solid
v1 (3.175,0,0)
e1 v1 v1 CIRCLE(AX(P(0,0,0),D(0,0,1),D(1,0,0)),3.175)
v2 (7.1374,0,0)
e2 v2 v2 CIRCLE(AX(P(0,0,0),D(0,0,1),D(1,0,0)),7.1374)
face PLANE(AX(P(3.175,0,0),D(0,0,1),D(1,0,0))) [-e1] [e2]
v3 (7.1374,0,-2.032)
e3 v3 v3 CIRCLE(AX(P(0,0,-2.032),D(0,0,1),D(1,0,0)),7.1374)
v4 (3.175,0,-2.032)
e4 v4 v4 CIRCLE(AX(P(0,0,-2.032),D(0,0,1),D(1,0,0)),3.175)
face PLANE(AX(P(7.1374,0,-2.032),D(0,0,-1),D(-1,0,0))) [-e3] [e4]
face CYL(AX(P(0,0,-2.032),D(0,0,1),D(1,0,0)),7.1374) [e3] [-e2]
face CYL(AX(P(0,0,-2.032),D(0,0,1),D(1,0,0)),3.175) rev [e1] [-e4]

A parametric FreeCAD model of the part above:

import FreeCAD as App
import Part
import Sketcher
Q = App.Units.Quantity


def add_polygon(sketch, points):
    """Adds a closed chain of lines whose ends are joined by coincident constraints."""
    first, n = sketch.GeometryCount, len(points)
    for a, b in zip(points, points[1:] + points[:1]):
        sketch.addGeometry(Part.LineSegment(App.Vector(*a, 0), App.Vector(*b, 0)), False)
    for i in range(n):
        sketch.addConstraint(Sketcher.Constraint("Coincident", first + i, 2, first + (i + 1) % n, 1))

doc = App.newDocument("Part")
body = doc.addObject("PartDesign::Body", "Body")

# Sketch on XZ plane
sketch1 = doc.addObject("Sketcher::SketchObject", "Sketch")
body.addObject(sketch1)
sketch1.AttachmentSupport = (doc.XZ_Plane, [""])
sketch1.MapMode = "FlatFace"
add_polygon(sketch1, [(3.175, -2.032), (3.175, 0), (7.1374, 0), (7.1374, -2.032)])  # lines 0-3
sketch1.addConstraint([
    Sketcher.Constraint("Vertical", 0),
    Sketcher.Constraint("Horizontal", 1),
    Sketcher.Constraint("Vertical", 2),
    Sketcher.Constraint("Horizontal", 3),
    Sketcher.Constraint("PointOnObject", 0, 2, -1),
    Sketcher.Constraint("DistanceY", 0, 1, 0, 2, Q("0.08 in")),
    Sketcher.Constraint("DistanceX", 1, 1, 1, 2, Q("0.156 in")),
    Sketcher.Constraint("DistanceX", -1, 1, 0, 2, Q("0.125 in")),
])
revolution = doc.addObject("PartDesign::Revolution", "Revolution")
body.addObject(revolution)
revolution.Profile = sketch1
revolution.ReferenceAxis = (sketch1, ["V_Axis"])
revolution.Angle = 360

doc.recompute()
